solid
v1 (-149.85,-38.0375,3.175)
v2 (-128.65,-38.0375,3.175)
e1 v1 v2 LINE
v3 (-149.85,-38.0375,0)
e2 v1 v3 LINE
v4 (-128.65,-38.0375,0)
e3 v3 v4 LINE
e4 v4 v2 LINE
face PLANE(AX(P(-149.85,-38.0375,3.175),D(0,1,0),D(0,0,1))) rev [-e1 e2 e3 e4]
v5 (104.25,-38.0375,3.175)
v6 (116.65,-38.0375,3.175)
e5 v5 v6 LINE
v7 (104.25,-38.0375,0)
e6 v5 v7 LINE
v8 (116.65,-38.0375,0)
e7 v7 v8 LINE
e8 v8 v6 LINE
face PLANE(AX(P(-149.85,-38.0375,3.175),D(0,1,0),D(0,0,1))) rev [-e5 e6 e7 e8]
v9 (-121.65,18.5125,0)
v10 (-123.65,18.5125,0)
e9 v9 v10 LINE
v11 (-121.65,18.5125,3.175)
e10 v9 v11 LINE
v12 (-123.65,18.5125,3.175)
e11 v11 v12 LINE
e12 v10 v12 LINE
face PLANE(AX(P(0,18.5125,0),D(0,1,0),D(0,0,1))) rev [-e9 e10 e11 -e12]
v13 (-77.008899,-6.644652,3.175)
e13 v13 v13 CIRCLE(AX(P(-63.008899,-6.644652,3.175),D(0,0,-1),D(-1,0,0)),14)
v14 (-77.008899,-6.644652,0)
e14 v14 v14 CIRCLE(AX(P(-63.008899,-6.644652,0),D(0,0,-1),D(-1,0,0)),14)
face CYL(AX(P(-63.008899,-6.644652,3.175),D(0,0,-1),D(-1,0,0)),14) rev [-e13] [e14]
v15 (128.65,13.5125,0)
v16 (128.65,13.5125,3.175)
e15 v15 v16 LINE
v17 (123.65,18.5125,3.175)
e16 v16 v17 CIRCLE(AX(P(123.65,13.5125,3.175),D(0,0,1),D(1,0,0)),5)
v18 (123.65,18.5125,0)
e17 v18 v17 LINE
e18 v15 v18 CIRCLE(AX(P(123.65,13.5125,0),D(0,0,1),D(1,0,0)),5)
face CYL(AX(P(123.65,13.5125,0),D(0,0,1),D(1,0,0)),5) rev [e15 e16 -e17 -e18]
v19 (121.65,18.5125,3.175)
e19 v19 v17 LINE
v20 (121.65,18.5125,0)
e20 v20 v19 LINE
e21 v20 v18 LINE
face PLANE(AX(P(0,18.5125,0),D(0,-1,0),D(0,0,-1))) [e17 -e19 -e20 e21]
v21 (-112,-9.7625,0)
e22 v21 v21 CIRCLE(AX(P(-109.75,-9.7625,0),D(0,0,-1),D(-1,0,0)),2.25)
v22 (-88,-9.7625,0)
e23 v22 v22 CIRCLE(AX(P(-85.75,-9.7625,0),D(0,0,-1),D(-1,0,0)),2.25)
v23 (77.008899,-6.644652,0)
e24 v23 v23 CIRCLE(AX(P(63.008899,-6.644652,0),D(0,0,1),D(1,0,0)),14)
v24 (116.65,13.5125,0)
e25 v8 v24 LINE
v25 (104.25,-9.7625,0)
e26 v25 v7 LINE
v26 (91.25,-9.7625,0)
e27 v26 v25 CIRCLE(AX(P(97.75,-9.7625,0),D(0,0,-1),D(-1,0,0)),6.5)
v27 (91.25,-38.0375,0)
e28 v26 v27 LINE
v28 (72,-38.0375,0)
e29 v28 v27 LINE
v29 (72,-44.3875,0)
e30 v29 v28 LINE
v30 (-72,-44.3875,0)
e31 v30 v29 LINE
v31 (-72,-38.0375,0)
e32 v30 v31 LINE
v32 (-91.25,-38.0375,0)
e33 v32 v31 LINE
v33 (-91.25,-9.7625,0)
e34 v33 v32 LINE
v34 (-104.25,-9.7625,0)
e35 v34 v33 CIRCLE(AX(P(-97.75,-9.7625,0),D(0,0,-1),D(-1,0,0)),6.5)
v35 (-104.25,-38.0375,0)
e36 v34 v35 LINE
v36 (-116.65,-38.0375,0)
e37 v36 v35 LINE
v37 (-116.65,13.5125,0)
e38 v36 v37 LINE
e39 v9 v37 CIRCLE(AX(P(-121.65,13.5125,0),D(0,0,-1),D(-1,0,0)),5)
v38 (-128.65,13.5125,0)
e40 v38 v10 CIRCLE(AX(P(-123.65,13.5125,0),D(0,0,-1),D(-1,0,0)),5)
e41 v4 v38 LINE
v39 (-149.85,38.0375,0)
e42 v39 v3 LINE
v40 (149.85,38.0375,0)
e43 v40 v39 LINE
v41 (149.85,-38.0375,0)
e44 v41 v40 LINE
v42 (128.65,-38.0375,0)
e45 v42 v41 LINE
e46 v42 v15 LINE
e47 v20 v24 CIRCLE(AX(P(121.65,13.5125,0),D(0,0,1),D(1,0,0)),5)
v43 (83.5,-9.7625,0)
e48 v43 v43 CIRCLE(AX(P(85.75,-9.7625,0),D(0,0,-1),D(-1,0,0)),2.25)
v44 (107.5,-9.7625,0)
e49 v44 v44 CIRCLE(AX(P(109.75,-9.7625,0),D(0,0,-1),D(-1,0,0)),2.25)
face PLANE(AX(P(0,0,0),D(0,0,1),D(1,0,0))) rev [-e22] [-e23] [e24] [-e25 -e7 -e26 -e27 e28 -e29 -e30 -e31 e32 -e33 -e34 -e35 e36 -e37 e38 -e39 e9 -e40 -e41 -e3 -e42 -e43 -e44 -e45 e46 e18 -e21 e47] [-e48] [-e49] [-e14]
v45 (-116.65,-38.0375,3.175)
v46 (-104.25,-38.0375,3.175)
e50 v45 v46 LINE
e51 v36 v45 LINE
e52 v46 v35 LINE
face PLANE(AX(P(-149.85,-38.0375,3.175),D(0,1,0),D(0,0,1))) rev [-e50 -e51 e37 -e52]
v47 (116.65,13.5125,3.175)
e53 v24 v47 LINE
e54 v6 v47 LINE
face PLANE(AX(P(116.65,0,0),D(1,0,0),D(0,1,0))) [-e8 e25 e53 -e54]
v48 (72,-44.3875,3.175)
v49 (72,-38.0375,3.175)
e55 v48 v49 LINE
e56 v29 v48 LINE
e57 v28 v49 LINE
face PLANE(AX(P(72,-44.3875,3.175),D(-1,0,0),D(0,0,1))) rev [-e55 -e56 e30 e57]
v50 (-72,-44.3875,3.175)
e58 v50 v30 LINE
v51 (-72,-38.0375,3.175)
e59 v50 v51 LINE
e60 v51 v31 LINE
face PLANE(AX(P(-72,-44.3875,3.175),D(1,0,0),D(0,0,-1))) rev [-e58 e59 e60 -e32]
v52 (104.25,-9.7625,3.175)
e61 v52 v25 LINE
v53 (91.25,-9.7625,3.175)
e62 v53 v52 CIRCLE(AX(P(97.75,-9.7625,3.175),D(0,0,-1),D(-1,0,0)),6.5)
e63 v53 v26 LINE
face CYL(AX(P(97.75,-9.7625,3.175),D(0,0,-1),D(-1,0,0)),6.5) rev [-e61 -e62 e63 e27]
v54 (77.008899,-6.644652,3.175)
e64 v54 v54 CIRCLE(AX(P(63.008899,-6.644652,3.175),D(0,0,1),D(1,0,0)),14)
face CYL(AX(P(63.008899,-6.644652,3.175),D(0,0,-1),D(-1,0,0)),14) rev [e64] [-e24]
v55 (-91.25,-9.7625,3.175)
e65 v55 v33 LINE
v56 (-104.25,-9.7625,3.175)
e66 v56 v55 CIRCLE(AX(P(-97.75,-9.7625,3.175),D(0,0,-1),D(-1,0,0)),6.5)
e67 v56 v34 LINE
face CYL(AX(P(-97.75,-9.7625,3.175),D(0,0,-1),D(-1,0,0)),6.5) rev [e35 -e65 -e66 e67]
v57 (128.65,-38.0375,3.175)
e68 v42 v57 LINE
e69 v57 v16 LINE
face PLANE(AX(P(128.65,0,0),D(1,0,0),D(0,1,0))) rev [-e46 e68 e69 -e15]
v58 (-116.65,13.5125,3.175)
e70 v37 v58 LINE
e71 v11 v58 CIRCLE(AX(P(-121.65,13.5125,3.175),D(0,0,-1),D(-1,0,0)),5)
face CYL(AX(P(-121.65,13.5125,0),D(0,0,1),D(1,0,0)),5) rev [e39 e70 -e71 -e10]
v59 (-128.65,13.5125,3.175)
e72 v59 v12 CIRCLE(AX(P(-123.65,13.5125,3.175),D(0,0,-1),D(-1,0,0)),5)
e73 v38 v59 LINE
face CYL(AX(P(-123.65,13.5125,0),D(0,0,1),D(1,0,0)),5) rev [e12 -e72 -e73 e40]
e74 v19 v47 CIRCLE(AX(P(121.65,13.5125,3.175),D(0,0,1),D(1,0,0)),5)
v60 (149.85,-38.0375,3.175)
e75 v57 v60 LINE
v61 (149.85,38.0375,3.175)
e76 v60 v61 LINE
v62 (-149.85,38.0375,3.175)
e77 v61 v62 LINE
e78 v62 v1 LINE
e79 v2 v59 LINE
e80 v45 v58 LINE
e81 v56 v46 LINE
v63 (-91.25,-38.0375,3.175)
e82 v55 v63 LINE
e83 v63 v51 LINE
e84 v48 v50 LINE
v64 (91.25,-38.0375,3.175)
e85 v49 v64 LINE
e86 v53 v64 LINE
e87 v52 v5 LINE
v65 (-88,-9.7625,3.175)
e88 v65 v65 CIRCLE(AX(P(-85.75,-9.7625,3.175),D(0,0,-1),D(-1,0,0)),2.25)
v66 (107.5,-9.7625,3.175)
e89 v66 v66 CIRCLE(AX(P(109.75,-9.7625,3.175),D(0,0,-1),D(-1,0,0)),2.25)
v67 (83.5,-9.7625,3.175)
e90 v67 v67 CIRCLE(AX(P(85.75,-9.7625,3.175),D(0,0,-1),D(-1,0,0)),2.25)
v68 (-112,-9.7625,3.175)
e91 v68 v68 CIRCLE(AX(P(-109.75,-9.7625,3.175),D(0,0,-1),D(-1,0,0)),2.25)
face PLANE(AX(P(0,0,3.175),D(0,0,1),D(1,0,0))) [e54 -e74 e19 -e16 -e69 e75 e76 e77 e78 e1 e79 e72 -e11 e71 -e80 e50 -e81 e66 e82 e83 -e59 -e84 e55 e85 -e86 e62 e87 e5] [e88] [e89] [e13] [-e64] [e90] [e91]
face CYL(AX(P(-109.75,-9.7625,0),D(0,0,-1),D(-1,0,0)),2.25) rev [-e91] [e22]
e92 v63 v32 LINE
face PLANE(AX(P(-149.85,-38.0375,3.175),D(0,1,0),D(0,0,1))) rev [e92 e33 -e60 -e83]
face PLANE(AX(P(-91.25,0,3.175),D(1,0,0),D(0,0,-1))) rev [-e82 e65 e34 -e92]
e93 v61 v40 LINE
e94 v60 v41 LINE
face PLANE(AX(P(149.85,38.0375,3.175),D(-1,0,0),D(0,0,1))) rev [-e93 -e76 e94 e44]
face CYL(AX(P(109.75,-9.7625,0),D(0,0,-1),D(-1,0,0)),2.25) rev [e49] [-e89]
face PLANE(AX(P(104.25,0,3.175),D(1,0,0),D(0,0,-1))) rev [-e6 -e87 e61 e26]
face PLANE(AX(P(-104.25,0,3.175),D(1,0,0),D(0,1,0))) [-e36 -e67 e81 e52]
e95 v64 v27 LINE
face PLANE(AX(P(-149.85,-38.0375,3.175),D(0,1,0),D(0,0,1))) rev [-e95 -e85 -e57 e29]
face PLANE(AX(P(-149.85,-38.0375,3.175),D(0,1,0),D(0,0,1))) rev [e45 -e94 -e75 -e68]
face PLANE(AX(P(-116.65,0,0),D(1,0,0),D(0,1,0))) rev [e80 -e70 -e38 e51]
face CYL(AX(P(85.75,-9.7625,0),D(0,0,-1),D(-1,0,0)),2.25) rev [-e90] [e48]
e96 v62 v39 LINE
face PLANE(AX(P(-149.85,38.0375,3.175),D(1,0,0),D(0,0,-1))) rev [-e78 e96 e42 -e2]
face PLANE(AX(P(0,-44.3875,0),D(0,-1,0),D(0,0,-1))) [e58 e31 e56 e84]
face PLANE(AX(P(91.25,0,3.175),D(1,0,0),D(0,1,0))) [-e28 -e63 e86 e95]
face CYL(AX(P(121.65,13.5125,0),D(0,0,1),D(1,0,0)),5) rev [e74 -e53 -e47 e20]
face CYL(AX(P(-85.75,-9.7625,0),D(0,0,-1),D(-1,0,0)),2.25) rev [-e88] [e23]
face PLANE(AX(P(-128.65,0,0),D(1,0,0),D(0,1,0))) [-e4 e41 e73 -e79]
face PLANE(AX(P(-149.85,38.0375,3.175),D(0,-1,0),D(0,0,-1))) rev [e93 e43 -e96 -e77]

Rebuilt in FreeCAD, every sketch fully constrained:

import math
import FreeCAD as App
import Part
import Sketcher

V = App.Vector

doc = App.newDocument("Part")
params = doc.addObject("Spreadsheet::Sheet", "Params")
for row, (alias, value) in enumerate([
    ("sketch1_width", "299.7 mm"),
    ("pad1_length", "3.175 mm"),
    ("sketch2_radius", "5 mm"),
    ("sketch2_width", "2 mm"),
    ("sketch2_height", "51.55 mm"),
    ("sketch3_radius", "6.5 mm"),
    ("sketch4_diameter", "4.5 mm"),
    ("hole_diameter", "4.5 mm"),
    ("sketch5_width", "144 mm"),
    ("pad2_length", "6.35 mm"),
    ("sketch6_diameter", "28 mm"),
], start=1):
    params.set(f"A{row}", alias)
    params.set(f"B{row}", "=" + value)
    params.setAlias(f"B{row}", alias)

body = doc.addObject("PartDesign::Body", "Body")

sketch1 = doc.addObject("Sketcher::SketchObject", "Sketch")
body.addObject(sketch1)
sketch1.AttachmentSupport = (doc.XY_Plane, [""])
sketch1.MapMode = "FlatFace"
sketch1.addGeometry(Part.LineSegment(V(-150, 38, 0), V(-150, -38, 0)), False)
sketch1.addGeometry(Part.LineSegment(V(-150, -38, 0), V(150, -38, 0)), False)
sketch1.addGeometry(Part.LineSegment(V(150, -38, 0), V(150, 38, 0)), False)
sketch1.addGeometry(Part.LineSegment(V(150, 38, 0), V(-150, 38, 0)), False)
sketch1.addConstraint(Sketcher.Constraint("Coincident", 0, 2, 1, 1))
sketch1.addConstraint(Sketcher.Constraint("Coincident", 1, 2, 2, 1))
sketch1.addConstraint(Sketcher.Constraint("Coincident", 2, 2, 3, 1))
sketch1.addConstraint(Sketcher.Constraint("Coincident", 3, 2, 0, 1))
sketch1.addConstraint(Sketcher.Constraint("Vertical", 0))
sketch1.addConstraint(Sketcher.Constraint("Horizontal", 1))
sketch1.addConstraint(Sketcher.Constraint("Vertical", 2))
sketch1.addConstraint(Sketcher.Constraint("Horizontal", 3))
sketch1.addConstraint(Sketcher.Constraint("Symmetric", 0, 2, 2, 2, -1, 1))
sketch1.addConstraint(Sketcher.Constraint("DistanceX", 1, 1, 1, 2, 299.7))
sketch1.addConstraint(Sketcher.Constraint("DistanceY", 0, 2, 0, 1, 76.075))
sketch1.setExpression("Constraints[9]", "Params.sketch1_width")
pad1 = doc.addObject("PartDesign::Pad", "Pad")
body.addObject(pad1)
pad1.Profile = sketch1
pad1.setExpression("Length", "Params.pad1_length")

sketch2 = doc.addObject("Sketcher::SketchObject", "Sketch001")
body.addObject(sketch2)
sketch2.AttachmentSupport = (doc.XY_Plane, [""])
sketch2.MapMode = "FlatFace"
sketch2.AttachmentOffset = App.Placement(V(0, 0, 3.175), App.Rotation())
sketch2.addGeometry(Part.LineSegment(V(123.7, 18.5, 0), V(121.7, 18.5, 0)), False)
sketch2.addGeometry(Part.ArcOfCircle(Part.Circle(V(121.7, 13.5, 0), V(0, 0, 1), 5), math.radians(90), math.radians(180)), False)
sketch2.addGeometry(Part.LineSegment(V(116.7, 13.5, 0), V(116.7, -38, 0)), False)
sketch2.addGeometry(Part.LineSegment(V(116.7, -38, 0), V(128.7, -38, 0)), False)
sketch2.addGeometry(Part.LineSegment(V(128.7, -38, 0), V(128.7, 13.5, 0)), False)
sketch2.addGeometry(Part.ArcOfCircle(Part.Circle(V(123.7, 13.5, 0), V(0, 0, 1), 5), math.radians(0), math.radians(90)), False)
sketch2.addConstraint(Sketcher.Constraint("Tangent", 0, 2, 1, 1))
sketch2.addConstraint(Sketcher.Constraint("Tangent", 1, 2, 2, 1))
sketch2.addConstraint(Sketcher.Constraint("Coincident", 2, 2, 3, 1))
sketch2.addConstraint(Sketcher.Constraint("Coincident", 3, 2, 4, 1))
sketch2.addConstraint(Sketcher.Constraint("Tangent", 4, 2, 5, 1))
sketch2.addConstraint(Sketcher.Constraint("Tangent", 5, 2, 0, 1))
sketch2.addConstraint(Sketcher.Constraint("Horizontal", 0))
sketch2.addConstraint(Sketcher.Constraint("Vertical", 2))
sketch2.addConstraint(Sketcher.Constraint("Horizontal", 3))
sketch2.addConstraint(Sketcher.Constraint("Vertical", 4))
sketch2.addConstraint(Sketcher.Constraint("Equal", 1, 5))
sketch2.addConstraint(Sketcher.Constraint("Radius", 1, 5.0))
sketch2.addConstraint(Sketcher.Constraint("DistanceX", 0, 2, 0, 1, 2.0))
sketch2.addConstraint(Sketcher.Constraint("DistanceY", 2, 2, 2, 1, 51.55))
sketch2.addConstraint(Sketcher.Constraint("DistanceX", -1, 1, 1, 3, 121.65))
sketch2.addConstraint(Sketcher.Constraint("DistanceY", -1, 1, 1, 3, 13.5125))
sketch2.setExpression("Constraints[11]", "Params.sketch2_radius")
sketch2.setExpression("Constraints[12]", "Params.sketch2_width")
sketch2.setExpression("Constraints[13]", "Params.sketch2_height")
pocket1 = doc.addObject("PartDesign::Pocket", "Pocket")
body.addObject(pocket1)
pocket1.Profile = sketch2
pocket1.Type = "ThroughAll"
doc.recompute()

mirrored = doc.addObject("PartDesign::Mirrored", "Mirrored")
body.addObject(mirrored)
mirrored.Originals = [pocket1]
mirrored.MirrorPlane = (doc.YZ_Plane, [""])
body.Tip = mirrored

sketch3 = doc.addObject("Sketcher::SketchObject", "Sketch002")
body.addObject(sketch3)
sketch3.AttachmentSupport = (doc.XY_Plane, [""])
sketch3.MapMode = "FlatFace"
sketch3.addGeometry(Part.ArcOfCircle(Part.Circle(V(98, -10, 0), V(0, 0, 1), 6), math.radians(0), math.radians(180)), False)
sketch3.addGeometry(Part.LineSegment(V(104, -10, 0), V(104, -38, 0)), False)
sketch3.addGeometry(Part.LineSegment(V(104, -38, 0), V(91, -38, 0)), False)
sketch3.addGeometry(Part.LineSegment(V(91, -38, 0), V(91, -10, 0)), False)
sketch3.addGeometry(Part.ArcOfCircle(Part.Circle(V(-98, -10, 0), V(0, 0, 1), 6), math.radians(0), math.radians(180)), False)
sketch3.addGeometry(Part.LineSegment(V(-91, -10, 0), V(-91, -38, 0)), False)
sketch3.addGeometry(Part.LineSegment(V(-91, -38, 0), V(-104, -38, 0)), False)
sketch3.addGeometry(Part.LineSegment(V(-104, -38, 0), V(-104, -10, 0)), False)
sketch3.addConstraint(Sketcher.Constraint("Tangent", 0, 1, 1, 1))
sketch3.addConstraint(Sketcher.Constraint("Coincident", 1, 2, 2, 1))
sketch3.addConstraint(Sketcher.Constraint("Coincident", 2, 2, 3, 1))
sketch3.addConstraint(Sketcher.Constraint("Tangent", 3, 2, 0, 2))
sketch3.addConstraint(Sketcher.Constraint("Tangent", 4, 1, 5, 1))
sketch3.addConstraint(Sketcher.Constraint("Coincident", 5, 2, 6, 1))
sketch3.addConstraint(Sketcher.Constraint("Coincident", 6, 2, 7, 1))
sketch3.addConstraint(Sketcher.Constraint("Tangent", 7, 2, 4, 2))
sketch3.addConstraint(Sketcher.Constraint("Vertical", 1))
sketch3.addConstraint(Sketcher.Constraint("Horizontal", 2))
sketch3.addConstraint(Sketcher.Constraint("Vertical", 3))
sketch3.addConstraint(Sketcher.Constraint("Vertical", 5))
sketch3.addConstraint(Sketcher.Constraint("Horizontal", 6))
sketch3.addConstraint(Sketcher.Constraint("Vertical", 7))
sketch3.addConstraint(Sketcher.Constraint("Equal", 0, 4))
sketch3.addConstraint(Sketcher.Constraint("Symmetric", 0, 3, 4, 3, -2))
sketch3.addConstraint(Sketcher.Constraint("Horizontal", 2, 2, 5, 2))
sketch3.addConstraint(Sketcher.Constraint("Radius", 0, 6.5))
sketch3.addConstraint(Sketcher.Constraint("DistanceX", 4, 3, 0, 1, 202.0))
sketch3.addConstraint(Sketcher.Constraint("DistanceY", 1, 2, 1, 1, 28.275))
sketch3.addConstraint(Sketcher.Constraint("DistanceY", 0, 3, -1, 1, 9.7625))
sketch3.setExpression("Constraints[17]", "Params.sketch3_radius")
pocket2 = doc.addObject("PartDesign::Pocket", "Pocket001")
body.addObject(pocket2)
pocket2.Profile = sketch3
pocket2.Type = "ThroughAll"
pocket2.Reversed = True

sketch4 = doc.addObject("Sketcher::SketchObject", "Sketch003")
body.addObject(sketch4)
sketch4.AttachmentSupport = (doc.XY_Plane, [""])
sketch4.MapMode = "FlatFace"
sketch4.addGeometry(Part.Circle(V(85.8, -9.8, 0), V(0, 0, 1), 2.2), False)
sketch4.addGeometry(Part.Circle(V(109.8, -9.8, 0), V(0, 0, 1), 2.2), False)
sketch4.addGeometry(Part.Circle(V(-109.8, -9.8, 0), V(0, 0, 1), 2.2), False)
sketch4.addGeometry(Part.Circle(V(-85.8, -9.8, 0), V(0, 0, 1), 2.2), False)
sketch4.addConstraint(Sketcher.Constraint("Equal", 0, 1))
sketch4.addConstraint(Sketcher.Constraint("Equal", 1, 2))
sketch4.addConstraint(Sketcher.Constraint("Equal", 2, 3))
sketch4.addConstraint(Sketcher.Constraint("Symmetric", 1, 3, 2, 3, -2))
sketch4.addConstraint(Sketcher.Constraint("Symmetric", 0, 3, 3, 3, -2))
sketch4.addConstraint(Sketcher.Constraint("Horizontal", 0, 3, 1, 3))
sketch4.addConstraint(Sketcher.Constraint("Diameter", 0, 4.5))
sketch4.addConstraint(Sketcher.Constraint("DistanceX", 0, 3, 1, 3, 24.0))
sketch4.addConstraint(Sketcher.Constraint("DistanceX", 2, 3, 0, 3, 195.5))
sketch4.addConstraint(Sketcher.Constraint("DistanceY", 0, 3, -1, 1, 9.7625))
sketch4.setExpression("Constraints[6]", "Params.sketch4_diameter")
doc.recompute()
hole = doc.addObject("PartDesign::Hole", "Hole")
body.addObject(hole)
hole.Profile = sketch4
hole.ThreadType = "None"
hole.setExpression("Diameter", "Params.hole_diameter")
hole.DepthType = "ThroughAll"
hole.Reversed = True

sketch5 = doc.addObject("Sketcher::SketchObject", "Sketch004")
body.addObject(sketch5)
sketch5.AttachmentSupport = (doc.XZ_Plane, [""])
sketch5.MapMode = "FlatFace"
sketch5.AttachmentOffset = App.Placement(V(0, 0, 38.0375), App.Rotation())
sketch5.addGeometry(Part.LineSegment(V(-72, 3.2, 0), V(-72, 0, 0)), False)
sketch5.addGeometry(Part.LineSegment(V(-72, 0, 0), V(72, 0, 0)), False)
sketch5.addGeometry(Part.LineSegment(V(72, 0, 0), V(72, 3.2, 0)), False)
sketch5.addGeometry(Part.LineSegment(V(72, 3.2, 0), V(-72, 3.2, 0)), False)
sketch5.addConstraint(Sketcher.Constraint("Coincident", 0, 2, 1, 1))
sketch5.addConstraint(Sketcher.Constraint("Coincident", 1, 2, 2, 1))
sketch5.addConstraint(Sketcher.Constraint("Coincident", 2, 2, 3, 1))
sketch5.addConstraint(Sketcher.Constraint("Coincident", 3, 2, 0, 1))
sketch5.addConstraint(Sketcher.Constraint("Vertical", 0))
sketch5.addConstraint(Sketcher.Constraint("Horizontal", 1))
sketch5.addConstraint(Sketcher.Constraint("Vertical", 2))
sketch5.addConstraint(Sketcher.Constraint("Horizontal", 3))
sketch5.addConstraint(Sketcher.Constraint("Symmetric", 0, 2, 1, 2, -1, 1))
sketch5.addConstraint(Sketcher.Constraint("DistanceX", 1, 1, 1, 2, 144.0))
sketch5.addConstraint(Sketcher.Constraint("DistanceY", 0, 2, 0, 1, 3.175))
sketch5.setExpression("Constraints[9]", "Params.sketch5_width")
pad2 = doc.addObject("PartDesign::Pad", "Pad001")
body.addObject(pad2)
pad2.Profile = sketch5
pad2.setExpression("Length", "Params.pad2_length")

sketch6 = doc.addObject("Sketcher::SketchObject", "Sketch005")
body.addObject(sketch6)
sketch6.AttachmentSupport = (doc.XY_Plane, [""])
sketch6.MapMode = "FlatFace"
sketch6.addGeometry(Part.Circle(V(-63, -7, 0), V(0, 0, 1), 14), False)
sketch6.addConstraint(Sketcher.Constraint("Diameter", 0, 28.0))
sketch6.addConstraint(Sketcher.Constraint("DistanceX", 0, 3, -1, 1, 63.008899))
sketch6.addConstraint(Sketcher.Constraint("DistanceY", 0, 3, -1, 1, 6.644652))
sketch6.setExpression("Constraints[0]", "Params.sketch6_diameter")
pocket3 = doc.addObject("PartDesign::Pocket", "Pocket002")
body.addObject(pocket3)
pocket3.Profile = sketch6
pocket3.Type = "ThroughAll"
pocket3.Reversed = True
doc.recompute()

mirrored2 = doc.addObject("PartDesign::Mirrored", "Mirrored001")
body.addObject(mirrored2)
mirrored2.Originals = [pocket3]
mirrored2.MirrorPlane = (doc.YZ_Plane, [""])
body.Tip = mirrored2

doc.recompute()
